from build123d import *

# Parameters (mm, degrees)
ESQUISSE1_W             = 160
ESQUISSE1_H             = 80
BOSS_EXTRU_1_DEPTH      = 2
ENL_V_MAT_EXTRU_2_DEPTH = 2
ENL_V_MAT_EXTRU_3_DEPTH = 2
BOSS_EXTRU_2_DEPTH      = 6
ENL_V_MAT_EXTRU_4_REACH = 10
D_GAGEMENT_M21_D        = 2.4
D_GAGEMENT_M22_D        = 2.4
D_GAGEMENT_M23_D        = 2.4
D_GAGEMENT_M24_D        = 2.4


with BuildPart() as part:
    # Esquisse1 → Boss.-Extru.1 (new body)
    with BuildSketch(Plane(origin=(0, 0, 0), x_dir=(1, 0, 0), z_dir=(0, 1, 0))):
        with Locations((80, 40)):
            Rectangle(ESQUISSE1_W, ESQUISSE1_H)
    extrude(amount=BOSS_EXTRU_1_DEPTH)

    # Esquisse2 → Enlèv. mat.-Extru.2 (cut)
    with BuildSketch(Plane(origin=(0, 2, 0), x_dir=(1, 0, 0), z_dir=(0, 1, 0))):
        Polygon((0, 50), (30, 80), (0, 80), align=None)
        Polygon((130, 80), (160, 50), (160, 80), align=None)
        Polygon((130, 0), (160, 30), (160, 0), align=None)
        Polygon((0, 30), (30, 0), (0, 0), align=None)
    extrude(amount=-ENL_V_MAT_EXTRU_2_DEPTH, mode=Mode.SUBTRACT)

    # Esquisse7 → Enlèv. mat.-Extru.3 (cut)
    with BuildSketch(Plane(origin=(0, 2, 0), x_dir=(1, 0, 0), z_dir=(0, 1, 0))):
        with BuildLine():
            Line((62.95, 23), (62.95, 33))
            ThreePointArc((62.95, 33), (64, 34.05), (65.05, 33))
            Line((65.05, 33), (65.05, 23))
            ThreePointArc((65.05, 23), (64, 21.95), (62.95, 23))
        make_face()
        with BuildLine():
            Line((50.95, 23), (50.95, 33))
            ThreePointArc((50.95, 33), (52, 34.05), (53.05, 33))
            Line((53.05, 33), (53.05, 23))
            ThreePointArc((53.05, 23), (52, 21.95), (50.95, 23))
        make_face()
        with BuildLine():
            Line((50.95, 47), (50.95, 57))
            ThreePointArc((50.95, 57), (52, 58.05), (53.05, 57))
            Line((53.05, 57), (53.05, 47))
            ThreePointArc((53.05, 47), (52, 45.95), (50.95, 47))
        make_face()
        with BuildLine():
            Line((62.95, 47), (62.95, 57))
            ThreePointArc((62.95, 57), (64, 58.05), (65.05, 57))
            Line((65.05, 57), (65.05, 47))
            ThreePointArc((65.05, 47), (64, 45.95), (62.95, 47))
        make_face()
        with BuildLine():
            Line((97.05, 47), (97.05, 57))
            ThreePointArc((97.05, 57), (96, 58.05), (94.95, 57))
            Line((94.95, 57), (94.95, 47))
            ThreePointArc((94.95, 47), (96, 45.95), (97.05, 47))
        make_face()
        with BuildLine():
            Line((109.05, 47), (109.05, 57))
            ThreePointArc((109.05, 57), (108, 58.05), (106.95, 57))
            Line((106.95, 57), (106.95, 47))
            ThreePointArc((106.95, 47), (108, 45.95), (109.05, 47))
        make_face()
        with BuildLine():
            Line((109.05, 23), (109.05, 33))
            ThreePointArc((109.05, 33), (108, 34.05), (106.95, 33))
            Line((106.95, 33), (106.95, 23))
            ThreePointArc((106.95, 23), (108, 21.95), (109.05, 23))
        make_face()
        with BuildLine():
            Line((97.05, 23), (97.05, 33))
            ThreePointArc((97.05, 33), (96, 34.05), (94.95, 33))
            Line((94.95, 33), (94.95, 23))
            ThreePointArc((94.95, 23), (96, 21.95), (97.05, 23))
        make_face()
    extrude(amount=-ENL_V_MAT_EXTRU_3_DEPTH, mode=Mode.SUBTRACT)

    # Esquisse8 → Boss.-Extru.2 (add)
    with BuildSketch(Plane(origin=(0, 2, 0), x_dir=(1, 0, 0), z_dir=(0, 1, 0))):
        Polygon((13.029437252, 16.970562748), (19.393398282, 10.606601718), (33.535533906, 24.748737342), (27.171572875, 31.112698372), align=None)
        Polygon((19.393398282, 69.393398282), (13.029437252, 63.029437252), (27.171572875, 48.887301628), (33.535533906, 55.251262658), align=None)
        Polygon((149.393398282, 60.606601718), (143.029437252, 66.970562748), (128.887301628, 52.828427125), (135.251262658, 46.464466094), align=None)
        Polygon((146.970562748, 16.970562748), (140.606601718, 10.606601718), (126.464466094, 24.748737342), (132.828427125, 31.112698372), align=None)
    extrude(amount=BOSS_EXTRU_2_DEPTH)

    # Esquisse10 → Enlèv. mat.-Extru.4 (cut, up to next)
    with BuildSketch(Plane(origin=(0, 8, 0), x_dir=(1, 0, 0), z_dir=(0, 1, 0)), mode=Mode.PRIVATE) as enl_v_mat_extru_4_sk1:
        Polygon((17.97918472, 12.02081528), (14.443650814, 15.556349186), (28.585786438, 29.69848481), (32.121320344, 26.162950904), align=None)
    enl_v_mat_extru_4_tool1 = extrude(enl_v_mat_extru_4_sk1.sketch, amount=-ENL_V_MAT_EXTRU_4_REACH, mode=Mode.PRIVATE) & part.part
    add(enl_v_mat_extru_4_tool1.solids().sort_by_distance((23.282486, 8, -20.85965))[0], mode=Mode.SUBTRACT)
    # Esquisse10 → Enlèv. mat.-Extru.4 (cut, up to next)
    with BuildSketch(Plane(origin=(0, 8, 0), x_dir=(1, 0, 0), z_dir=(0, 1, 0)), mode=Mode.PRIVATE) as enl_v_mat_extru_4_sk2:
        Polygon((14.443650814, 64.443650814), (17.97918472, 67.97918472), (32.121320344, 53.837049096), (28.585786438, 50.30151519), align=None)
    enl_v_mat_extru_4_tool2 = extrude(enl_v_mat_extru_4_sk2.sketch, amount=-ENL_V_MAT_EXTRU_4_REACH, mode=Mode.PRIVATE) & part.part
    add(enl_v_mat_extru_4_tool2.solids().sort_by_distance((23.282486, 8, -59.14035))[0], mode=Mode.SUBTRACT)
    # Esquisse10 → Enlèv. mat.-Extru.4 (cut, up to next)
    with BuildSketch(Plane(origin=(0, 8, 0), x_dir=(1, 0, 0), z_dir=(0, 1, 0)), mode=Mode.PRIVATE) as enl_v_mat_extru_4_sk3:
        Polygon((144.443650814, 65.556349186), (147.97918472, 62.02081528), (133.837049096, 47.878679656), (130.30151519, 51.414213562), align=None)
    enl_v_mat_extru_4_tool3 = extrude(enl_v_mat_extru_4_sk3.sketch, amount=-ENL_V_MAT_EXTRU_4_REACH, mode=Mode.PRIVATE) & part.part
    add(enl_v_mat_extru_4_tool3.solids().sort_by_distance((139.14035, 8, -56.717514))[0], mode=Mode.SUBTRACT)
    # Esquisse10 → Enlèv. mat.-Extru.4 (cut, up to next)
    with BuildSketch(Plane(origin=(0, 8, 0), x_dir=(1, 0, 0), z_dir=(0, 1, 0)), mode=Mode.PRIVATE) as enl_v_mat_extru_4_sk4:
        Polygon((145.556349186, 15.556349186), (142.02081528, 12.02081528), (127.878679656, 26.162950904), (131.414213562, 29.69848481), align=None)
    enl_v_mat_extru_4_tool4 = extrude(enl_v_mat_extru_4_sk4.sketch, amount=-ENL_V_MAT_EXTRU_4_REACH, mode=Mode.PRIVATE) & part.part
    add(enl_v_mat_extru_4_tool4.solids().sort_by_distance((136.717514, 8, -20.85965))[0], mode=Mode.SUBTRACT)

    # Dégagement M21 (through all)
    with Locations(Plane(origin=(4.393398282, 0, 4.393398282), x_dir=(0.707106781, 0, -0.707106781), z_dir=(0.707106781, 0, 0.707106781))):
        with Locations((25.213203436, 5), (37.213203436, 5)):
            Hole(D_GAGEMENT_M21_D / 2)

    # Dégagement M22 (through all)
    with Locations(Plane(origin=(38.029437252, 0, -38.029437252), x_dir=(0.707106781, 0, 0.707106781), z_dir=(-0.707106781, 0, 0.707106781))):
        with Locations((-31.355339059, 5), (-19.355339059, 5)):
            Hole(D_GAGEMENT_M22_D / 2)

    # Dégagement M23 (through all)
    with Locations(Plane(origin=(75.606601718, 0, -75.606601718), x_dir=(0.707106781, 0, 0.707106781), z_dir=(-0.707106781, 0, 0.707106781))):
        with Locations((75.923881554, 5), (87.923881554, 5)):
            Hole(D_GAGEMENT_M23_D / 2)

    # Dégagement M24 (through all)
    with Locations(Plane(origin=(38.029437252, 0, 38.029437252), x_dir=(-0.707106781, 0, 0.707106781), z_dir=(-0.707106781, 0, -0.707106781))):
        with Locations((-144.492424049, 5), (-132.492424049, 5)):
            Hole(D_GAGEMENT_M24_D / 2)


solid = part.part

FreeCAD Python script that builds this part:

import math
import FreeCAD as App
import Part
import Sketcher
Q = App.Units.Quantity


def add_polygon(sketch, points):
    """Adds a closed chain of lines whose ends are joined by coincident constraints."""
    first, n = sketch.GeometryCount, len(points)
    for a, b in zip(points, points[1:] + points[:1]):
        sketch.addGeometry(Part.LineSegment(App.Vector(*a, 0), App.Vector(*b, 0)), False)
    for i in range(n):
        sketch.addConstraint(Sketcher.Constraint("Coincident", first + i, 2, first + (i + 1) % n, 1))

doc = App.newDocument("Part")
body = doc.addObject("PartDesign::Body", "Body")

# Sketch on XZ plane
sketch1 = doc.addObject("Sketcher::SketchObject", "Sketch")
body.addObject(sketch1)
sketch1.AttachmentSupport = (doc.XZ_Plane, [""])
sketch1.MapMode = "FlatFace"
add_polygon(sketch1, [(0, -80), (0, 0), (160, 0), (160, -80)])  # lines 0-3
sketch1.addConstraint(Sketcher.Constraint("Vertical", 0))
sketch1.addConstraint(Sketcher.Constraint("Horizontal", 1))
sketch1.addConstraint(Sketcher.Constraint("Vertical", 2))
sketch1.addConstraint(Sketcher.Constraint("Horizontal", 3))
sketch1.addConstraint(Sketcher.Constraint("Coincident", 0, 2, -1, 1))
sketch1.addConstraint(Sketcher.Constraint("DistanceX", 1, 1, 1, 2, 160.0))
sketch1.addConstraint(Sketcher.Constraint("DistanceY", 0, 1, 0, 2, 80.0))
pad1 = doc.addObject("PartDesign::Pad", "Pad")
body.addObject(pad1)
pad1.Profile = sketch1
pad1.Length = 2
pad1.Reversed = True

# Sketch on XZ plane
sketch2 = doc.addObject("Sketcher::SketchObject", "Sketch001")
body.addObject(sketch2)
sketch2.AttachmentSupport = (doc.XZ_Plane, [""])
sketch2.MapMode = "FlatFace"
sketch2.AttachmentOffset = App.Placement(App.Vector(0, 0, -2), App.Rotation())
add_polygon(sketch2, [(0, -50), (30, -80), (0, -80)])  # lines 0-2
add_polygon(sketch2, [(130, -80), (160, -50), (160, -80)])  # lines 3-5
add_polygon(sketch2, [(160, -30), (130, 0), (160, 0)])  # lines 6-8
add_polygon(sketch2, [(30, 0), (0, -30), (0, 0)])  # lines 9-11
sketch2.addConstraint(Sketcher.Constraint("Horizontal", 1))
sketch2.addConstraint(Sketcher.Constraint("Vertical", 2))
sketch2.addConstraint(Sketcher.Constraint("Vertical", 4))
sketch2.addConstraint(Sketcher.Constraint("Horizontal", 5))
sketch2.addConstraint(Sketcher.Constraint("Horizontal", 7))
sketch2.addConstraint(Sketcher.Constraint("Vertical", 8))
sketch2.addConstraint(Sketcher.Constraint("Vertical", 10))
sketch2.addConstraint(Sketcher.Constraint("Horizontal", 11))
sketch2.addConstraint(Sketcher.Constraint("Coincident", 10, 2, -1, 1))
sketch2.addConstraint(Sketcher.Constraint("PointOnObject", 1, 2, -2))
sketch2.addConstraint(Sketcher.Constraint("PointOnObject", 6, 2, -1))
sketch2.addConstraint(Sketcher.Constraint("Perpendicular", 0, 3))
sketch2.addConstraint(Sketcher.Constraint("Perpendicular", 3, 6))
sketch2.addConstraint(Sketcher.Constraint("Perpendicular", 6, 9))
sketch2.addConstraint(Sketcher.Constraint("Horizontal", 2, 2, 3, 2))
sketch2.addConstraint(Sketcher.Constraint("Horizontal", 1, 2, 4, 2))
sketch2.addConstraint(Sketcher.Constraint("Horizontal", 8, 2, 9, 2))
sketch2.addConstraint(Sketcher.Constraint("Vertical", 5, 2, 6, 2))
sketch2.addConstraint(Sketcher.Constraint("Vertical", 4, 2, 7, 2))
sketch2.addConstraint(Sketcher.Constraint("Vertical", 0, 2, 11, 2))
sketch2.addConstraint(Sketcher.Constraint("DistanceX", 1, 2, 1, 1, 30.0))
sketch2.addConstraint(Sketcher.Constraint("DistanceY", 0, 2, -1, 1, 80.0))
sketch2.addConstraint(Sketcher.Constraint("DistanceX", -1, 1, 3, 2, 160.0))
pocket1 = doc.addObject("PartDesign::Pocket", "Pocket")
body.addObject(pocket1)
pocket1.Profile = sketch2
pocket1.Length = 2
pocket1.Reversed = True

# Sketch on XZ plane
sketch3 = doc.addObject("Sketcher::SketchObject", "Sketch002")
body.addObject(sketch3)
sketch3.AttachmentSupport = (doc.XZ_Plane, [""])
sketch3.MapMode = "FlatFace"
sketch3.AttachmentOffset = App.Placement(App.Vector(0, 0, -2), App.Rotation())
sketch3.addGeometry(Part.LineSegment(App.Vector(62.95, -33, 0), App.Vector(62.95, -23, 0)), False)
sketch3.addGeometry(Part.ArcOfCircle(Part.Circle(App.Vector(64, -23, 0), App.Vector(0, 0, 1), 1.05), math.radians(0), math.radians(180)), False)
sketch3.addGeometry(Part.LineSegment(App.Vector(65.05, -23, 0), App.Vector(65.05, -33, 0)), False)
sketch3.addGeometry(Part.ArcOfCircle(Part.Circle(App.Vector(64, -33, 0), App.Vector(0, 0, 1), 1.05), math.radians(180), math.radians(360)), False)
sketch3.addGeometry(Part.LineSegment(App.Vector(50.95, -33, 0), App.Vector(50.95, -23, 0)), False)
sketch3.addGeometry(Part.ArcOfCircle(Part.Circle(App.Vector(52, -23, 0), App.Vector(0, 0, 1), 1.05), math.radians(0), math.radians(180)), False)
sketch3.addGeometry(Part.LineSegment(App.Vector(53.05, -23, 0), App.Vector(53.05, -33, 0)), False)
sketch3.addGeometry(Part.ArcOfCircle(Part.Circle(App.Vector(52, -33, 0), App.Vector(0, 0, 1), 1.05), math.radians(180), math.radians(360)), False)
sketch3.addGeometry(Part.LineSegment(App.Vector(50.95, -57, 0), App.Vector(50.95, -47, 0)), False)
sketch3.addGeometry(Part.ArcOfCircle(Part.Circle(App.Vector(52, -47, 0), App.Vector(0, 0, 1), 1.05), math.radians(0), math.radians(180)), False)
sketch3.addGeometry(Part.LineSegment(App.Vector(53.05, -47, 0), App.Vector(53.05, -57, 0)), False)
sketch3.addGeometry(Part.ArcOfCircle(Part.Circle(App.Vector(52, -57, 0), App.Vector(0, 0, 1), 1.05), math.radians(180), math.radians(360)), False)
sketch3.addGeometry(Part.LineSegment(App.Vector(62.95, -57, 0), App.Vector(62.95, -47, 0)), False)
sketch3.addGeometry(Part.ArcOfCircle(Part.Circle(App.Vector(64, -47, 0), App.Vector(0, 0, 1), 1.05), math.radians(0), math.radians(180)), False)
sketch3.addGeometry(Part.LineSegment(App.Vector(65.05, -47, 0), App.Vector(65.05, -57, 0)), False)
sketch3.addGeometry(Part.ArcOfCircle(Part.Circle(App.Vector(64, -57, 0), App.Vector(0, 0, 1), 1.05), math.radians(180), math.radians(360)), False)
sketch3.addGeometry(Part.LineSegment(App.Vector(97.05, -47, 0), App.Vector(97.05, -57, 0)), False)
sketch3.addGeometry(Part.ArcOfCircle(Part.Circle(App.Vector(96, -57, 0), App.Vector(0, 0, 1), 1.05), math.radians(180), math.radians(360)), False)
sketch3.addGeometry(Part.LineSegment(App.Vector(94.95, -57, 0), App.Vector(94.95, -47, 0)), False)
sketch3.addGeometry(Part.ArcOfCircle(Part.Circle(App.Vector(96, -47, 0), App.Vector(0, 0, 1), 1.05), math.radians(0), math.radians(180)), False)
sketch3.addGeometry(Part.LineSegment(App.Vector(109.05, -47, 0), App.Vector(109.05, -57, 0)), False)
sketch3.addGeometry(Part.ArcOfCircle(Part.Circle(App.Vector(108, -57, 0), App.Vector(0, 0, 1), 1.05), math.radians(180), math.radians(360)), False)
sketch3.addGeometry(Part.LineSegment(App.Vector(106.95, -57, 0), App.Vector(106.95, -47, 0)), False)
sketch3.addGeometry(Part.ArcOfCircle(Part.Circle(App.Vector(108, -47, 0), App.Vector(0, 0, 1), 1.05), math.radians(0), math.radians(180)), False)
sketch3.addGeometry(Part.LineSegment(App.Vector(109.05, -23, 0), App.Vector(109.05, -33, 0)), False)
sketch3.addGeometry(Part.ArcOfCircle(Part.Circle(App.Vector(108, -33, 0), App.Vector(0, 0, 1), 1.05), math.radians(180), math.radians(360)), False)
sketch3.addGeometry(Part.LineSegment(App.Vector(106.95, -33, 0), App.Vector(106.95, -23, 0)), False)
sketch3.addGeometry(Part.ArcOfCircle(Part.Circle(App.Vector(108, -23, 0), App.Vector(0, 0, 1), 1.05), math.radians(0), math.radians(180)), False)
sketch3.addGeometry(Part.LineSegment(App.Vector(97.05, -23, 0), App.Vector(97.05, -33, 0)), False)
sketch3.addGeometry(Part.ArcOfCircle(Part.Circle(App.Vector(96, -33, 0), App.Vector(0, 0, 1), 1.05), math.radians(180), math.radians(360)), False)
sketch3.addGeometry(Part.LineSegment(App.Vector(94.95, -33, 0), App.Vector(94.95, -23, 0)), False)
sketch3.addGeometry(Part.ArcOfCircle(Part.Circle(App.Vector(96, -23, 0), App.Vector(0, 0, 1), 1.05), math.radians(0), math.radians(180)), False)
sketch3.addConstraint(Sketcher.Constraint("Tangent", 0, 2, 1, 2))
sketch3.addConstraint(Sketcher.Constraint("Tangent", 1, 1, 2, 1))
sketch3.addConstraint(Sketcher.Constraint("Tangent", 2, 2, 3, 2))
sketch3.addConstraint(Sketcher.Constraint("Tangent", 3, 1, 0, 1))
sketch3.addConstraint(Sketcher.Constraint("Tangent", 4, 2, 5, 2))
sketch3.addConstraint(Sketcher.Constraint("Tangent", 5, 1, 6, 1))
sketch3.addConstraint(Sketcher.Constraint("Tangent", 6, 2, 7, 2))
sketch3.addConstraint(Sketcher.Constraint("Tangent", 7, 1, 4, 1))
sketch3.addConstraint(Sketcher.Constraint("Tangent", 8, 2, 9, 2))
sketch3.addConstraint(Sketcher.Constraint("Tangent", 9, 1, 10, 1))
sketch3.addConstraint(Sketcher.Constraint("Tangent", 10, 2, 11, 2))
sketch3.addConstraint(Sketcher.Constraint("Tangent", 11, 1, 8, 1))
sketch3.addConstraint(Sketcher.Constraint("Tangent", 12, 2, 13, 2))
sketch3.addConstraint(Sketcher.Constraint("Tangent", 13, 1, 14, 1))
sketch3.addConstraint(Sketcher.Constraint("Tangent", 14, 2, 15, 2))
sketch3.addConstraint(Sketcher.Constraint("Tangent", 15, 1, 12, 1))
sketch3.addConstraint(Sketcher.Constraint("Tangent", 16, 2, 17, 2))
sketch3.addConstraint(Sketcher.Constraint("Tangent", 17, 1, 18, 1))
sketch3.addConstraint(Sketcher.Constraint("Tangent", 18, 2, 19, 2))
sketch3.addConstraint(Sketcher.Constraint("Tangent", 19, 1, 16, 1))
sketch3.addConstraint(Sketcher.Constraint("Tangent", 20, 2, 21, 2))
sketch3.addConstraint(Sketcher.Constraint("Tangent", 21, 1, 22, 1))
sketch3.addConstraint(Sketcher.Constraint("Tangent", 22, 2, 23, 2))
sketch3.addConstraint(Sketcher.Constraint("Tangent", 23, 1, 20, 1))
sketch3.addConstraint(Sketcher.Constraint("Tangent", 24, 2, 25, 2))
sketch3.addConstraint(Sketcher.Constraint("Tangent", 25, 1, 26, 1))
sketch3.addConstraint(Sketcher.Constraint("Tangent", 26, 2, 27, 2))
sketch3.addConstraint(Sketcher.Constraint("Tangent", 27, 1, 24, 1))
sketch3.addConstraint(Sketcher.Constraint("Tangent", 28, 2, 29, 2))
sketch3.addConstraint(Sketcher.Constraint("Tangent", 29, 1, 30, 1))
sketch3.addConstraint(Sketcher.Constraint("Tangent", 30, 2, 31, 2))
sketch3.addConstraint(Sketcher.Constraint("Tangent", 31, 1, 28, 1))
sketch3.addConstraint(Sketcher.Constraint("Vertical", 0))
sketch3.addConstraint(Sketcher.Constraint("Vertical", 2))
sketch3.addConstraint(Sketcher.Constraint("Vertical", 4))
sketch3.addConstraint(Sketcher.Constraint("Vertical", 6))
sketch3.addConstraint(Sketcher.Constraint("Vertical", 8))
sketch3.addConstraint(Sketcher.Constraint("Vertical", 10))
sketch3.addConstraint(Sketcher.Constraint("Vertical", 12))
sketch3.addConstraint(Sketcher.Constraint("Vertical", 14))
sketch3.addConstraint(Sketcher.Constraint("Vertical", 16))
sketch3.addConstraint(Sketcher.Constraint("Vertical", 18))
sketch3.addConstraint(Sketcher.Constraint("Vertical", 20))
sketch3.addConstraint(Sketcher.Constraint("Vertical", 22))
sketch3.addConstraint(Sketcher.Constraint("Vertical", 24))
sketch3.addConstraint(Sketcher.Constraint("Vertical", 26))
sketch3.addConstraint(Sketcher.Constraint("Vertical", 28))
sketch3.addConstraint(Sketcher.Constraint("Vertical", 30))
sketch3.addConstraint(Sketcher.Constraint("Equal", 3, 5))
sketch3.addConstraint(Sketcher.Constraint("Equal", 7, 9))
sketch3.addConstraint(Sketcher.Constraint("Equal", 11, 13))
sketch3.addConstraint(Sketcher.Constraint("Equal", 15, 17))
sketch3.addConstraint(Sketcher.Constraint("Equal", 19, 21))
sketch3.addConstraint(Sketcher.Constraint("Equal", 23, 25))
sketch3.addConstraint(Sketcher.Constraint("Equal", 27, 29))
sketch3.addConstraint(Sketcher.Constraint("Horizontal", 1, 3, 5, 3))
sketch3.addConstraint(Sketcher.Constraint("Horizontal", 3, 3, 7, 3))
sketch3.addConstraint(Sketcher.Constraint("Horizontal", 9, 3, 13, 3))
sketch3.addConstraint(Sketcher.Constraint("Horizontal", 11, 3, 15, 3))
sketch3.addConstraint(Sketcher.Constraint("Horizontal", 15, 3, 17, 3))
sketch3.addConstraint(Sketcher.Constraint("Horizontal", 13, 3, 19, 3))
sketch3.addConstraint(Sketcher.Constraint("Horizontal", 17, 3, 21, 3))
sketch3.addConstraint(Sketcher.Constraint("Horizontal", 19, 3, 23, 3))
sketch3.addConstraint(Sketcher.Constraint("Horizontal", 7, 3, 25, 3))
sketch3.addConstraint(Sketcher.Constraint("Horizontal", 5, 3, 27, 3))
sketch3.addConstraint(Sketcher.Constraint("Horizontal", 25, 3, 29, 3))
sketch3.addConstraint(Sketcher.Constraint("Horizontal", 27, 3, 31, 3))
sketch3.addConstraint(Sketcher.Constraint("Vertical", 7, 3, 9, 3))
sketch3.addConstraint(Sketcher.Constraint("Vertical", 3, 3, 13, 3))
sketch3.addConstraint(Sketcher.Constraint("Vertical", 23, 3, 25, 3))
sketch3.addConstraint(Sketcher.Constraint("Vertical", 19, 3, 29, 3))
sketch3.addConstraint(Sketcher.Constraint("Equal", 6, 8))
sketch3.addConstraint(Sketcher.Constraint("DistanceY", 0, 1, 0, 2, 10.0))
sketch3.addConstraint(Sketcher.Constraint("Radius", 1, 1.05))
sketch3.addConstraint(Sketcher.Constraint("DistanceX", -1, 1, 1, 3, 64.0))
sketch3.addConstraint(Sketcher.Constraint("DistanceY", 1, 3, -1, 1, 23.0))
sketch3.addConstraint(Sketcher.Constraint("DistanceX", -1, 1, 5, 3, 52.0))
sketch3.addConstraint(Sketcher.Constraint("DistanceY", 9, 3, -1, 1, 47.0))
sketch3.addConstraint(Sketcher.Constraint("DistanceX", -1, 1, 17, 3, 96.0))
sketch3.addConstraint(Sketcher.Constraint("DistanceX", -1, 1, 21, 3, 108.0))
pocket2 = doc.addObject("PartDesign::Pocket", "Pocket001")
body.addObject(pocket2)
pocket2.Profile = sketch3
pocket2.Length = 2
pocket2.Reversed = True

# Sketch on XZ plane
sketch4 = doc.addObject("Sketcher::SketchObject", "Sketch003")
body.addObject(sketch4)
sketch4.AttachmentSupport = (doc.XZ_Plane, [""])
sketch4.MapMode = "FlatFace"
sketch4.AttachmentOffset = App.Placement(App.Vector(0, 0, -2), App.Rotation())
add_polygon(sketch4, [(13.029437, -16.970563), (19.393398, -10.606602), (33.535534, -24.748737), (27.171573, -31.112698)])  # lines 0-3
add_polygon(sketch4, [(19.393398, -69.393398), (13.029437, -63.029437), (27.171573, -48.887302), (33.535534, -55.251263)])  # lines 4-7
add_polygon(sketch4, [(149.393398, -60.606602), (143.029437, -66.970563), (128.887302, -52.828427), (135.251263, -46.464466)])  # lines 8-11
add_polygon(sketch4, [(140.606602, -10.606602), (146.970563, -16.970563), (132.828427, -31.112698), (126.464466, -24.748737)])  # lines 12-15
sketch4.addConstraint(Sketcher.Constraint("Perpendicular", 0, 1))
sketch4.addConstraint(Sketcher.Constraint("Perpendicular", 1, 2))
sketch4.addConstraint(Sketcher.Constraint("Perpendicular", 2, 3))
sketch4.addConstraint(Sketcher.Constraint("Parallel", 3, 4))
sketch4.addConstraint(Sketcher.Constraint("Perpendicular", 4, 5))
sketch4.addConstraint(Sketcher.Constraint("Perpendicular", 5, 6))
sketch4.addConstraint(Sketcher.Constraint("Perpendicular", 6, 7))
sketch4.addConstraint(Sketcher.Constraint("Parallel", 7, 8))
sketch4.addConstraint(Sketcher.Constraint("Perpendicular", 8, 9))
sketch4.addConstraint(Sketcher.Constraint("Perpendicular", 9, 10))
sketch4.addConstraint(Sketcher.Constraint("Perpendicular", 10, 11))
sketch4.addConstraint(Sketcher.Constraint("Parallel", 11, 12))
sketch4.addConstraint(Sketcher.Constraint("Perpendicular", 12, 13))
sketch4.addConstraint(Sketcher.Constraint("Perpendicular", 13, 14))
sketch4.addConstraint(Sketcher.Constraint("Perpendicular", 14, 15))
sketch4.addConstraint(Sketcher.Constraint("Horizontal", 3, 2, 12, 2))
sketch4.addConstraint(Sketcher.Constraint("Horizontal", 2, 2, 13, 2))
sketch4.addConstraint(Sketcher.Constraint("Horizontal", 1, 2, 14, 2))
sketch4.addConstraint(Sketcher.Constraint("Vertical", 3, 2, 4, 2))
sketch4.addConstraint(Sketcher.Constraint("Vertical", 2, 2, 5, 2))
sketch4.addConstraint(Sketcher.Constraint("Vertical", 1, 2, 6, 2))
sketch4.addConstraint(Sketcher.Constraint("Equal", 2, 4))
sketch4.addConstraint(Sketcher.Constraint("Equal", 6, 8))
sketch4.addConstraint(Sketcher.Constraint("Equal", 7, 9))
sketch4.addConstraint(Sketcher.Constraint("Distance", 0, 9.0))
sketch4.addConstraint(Sketcher.Constraint("Distance", 1, 20.0))
sketch4.addConstraint(Sketcher.Constraint("DistanceY", 8, 2, 12, 2, 50.0))
sketch4.addConstraint(Sketcher.Constraint("DistanceX", -1, 1, 0, 2, 19.393398))
sketch4.addConstraint(Sketcher.Constraint("DistanceY", 0, 2, -1, 1, 10.606602))
sketch4.addConstraint(Sketcher.Constraint("DistanceY", 5, 2, -1, 1, 48.887302))
sketch4.addConstraint(Sketcher.Constraint("DistanceX", -1, 1, 9, 2, 128.887302))
sketch4.addConstraint(Sketcher.Constraint("DistanceX", -1, 1, 15, 2, 140.606602))
pad2 = doc.addObject("PartDesign::Pad", "Pad001")
body.addObject(pad2)
pad2.Profile = sketch4
pad2.Length = 6
pad2.Reversed = True

# Sketch on XZ plane
sketch5 = doc.addObject("Sketcher::SketchObject", "Sketch004")
body.addObject(sketch5)
sketch5.AttachmentSupport = (doc.XZ_Plane, [""])
sketch5.MapMode = "FlatFace"
sketch5.AttachmentOffset = App.Placement(App.Vector(0, 0, -8), App.Rotation())
add_polygon(sketch5, [(14.443651, -15.556349), (17.979185, -12.020815), (32.12132, -26.162951), (28.585786, -29.698485)])  # lines 0-3
sketch5.addConstraint(Sketcher.Constraint("Perpendicular", 0, 1))
sketch5.addConstraint(Sketcher.Constraint("Perpendicular", 1, 2))
sketch5.addConstraint(Sketcher.Constraint("Perpendicular", 2, 3))
sketch5.addConstraint(Sketcher.Constraint("Angle", 0, Q("45 deg")))
sketch5.addConstraint(Sketcher.Constraint("Distance", 0, 5.0))
sketch5.addConstraint(Sketcher.Constraint("Distance", 1, 20.0))
sketch5.addConstraint(Sketcher.Constraint("DistanceX", -1, 1, 1, 2, 32.12132))
sketch5.addConstraint(Sketcher.Constraint("DistanceY", 1, 2, -1, 1, 26.162951))
pocket3 = doc.addObject("PartDesign::Pocket", "Pocket002")
body.addObject(pocket3)
pocket3.Profile = sketch5
pocket3.Type = "UpToFirst"
pocket3.Reversed = True

# Sketch on XZ plane
sketch6 = doc.addObject("Sketcher::SketchObject", "Sketch005")
body.addObject(sketch6)
sketch6.AttachmentSupport = (doc.XZ_Plane, [""])
sketch6.MapMode = "FlatFace"
sketch6.AttachmentOffset = App.Placement(App.Vector(0, 0, -8), App.Rotation())
add_polygon(sketch6, [(17.979185, -67.979185), (14.443651, -64.443651), (28.585786, -50.301515), (32.12132, -53.837049)])  # lines 0-3
sketch6.addConstraint(Sketcher.Constraint("Perpendicular", 0, 1))
sketch6.addConstraint(Sketcher.Constraint("Perpendicular", 1, 2))
sketch6.addConstraint(Sketcher.Constraint("Perpendicular", 2, 3))
sketch6.addConstraint(Sketcher.Constraint("Angle", 0, Q("135 deg")))
sketch6.addConstraint(Sketcher.Constraint("Distance", 0, 5.0))
sketch6.addConstraint(Sketcher.Constraint("Distance", 1, 20.0))
sketch6.addConstraint(Sketcher.Constraint("DistanceX", -1, 1, 0, 2, 14.443651))
sketch6.addConstraint(Sketcher.Constraint("DistanceY", 0, 2, -1, 1, 64.443651))
pocket4 = doc.addObject("PartDesign::Pocket", "Pocket003")
body.addObject(pocket4)
pocket4.Profile = sketch6
pocket4.Type = "UpToFirst"
pocket4.Reversed = True

# Sketch on XZ plane
sketch7 = doc.addObject("Sketcher::SketchObject", "Sketch006")
body.addObject(sketch7)
sketch7.AttachmentSupport = (doc.XZ_Plane, [""])
sketch7.MapMode = "FlatFace"
sketch7.AttachmentOffset = App.Placement(App.Vector(0, 0, -8), App.Rotation())
add_polygon(sketch7, [(147.979185, -62.020815), (144.443651, -65.556349), (130.301515, -51.414214), (133.837049, -47.87868)])  # lines 0-3
sketch7.addConstraint(Sketcher.Constraint("Perpendicular", 0, 1))
sketch7.addConstraint(Sketcher.Constraint("Perpendicular", 1, 2))
sketch7.addConstraint(Sketcher.Constraint("Perpendicular", 2, 3))
sketch7.addConstraint(Sketcher.Constraint("Angle", 0, Q("-135 deg")))
sketch7.addConstraint(Sketcher.Constraint("Distance", 0, 5.0))
sketch7.addConstraint(Sketcher.Constraint("Distance", 1, 20.0))
sketch7.addConstraint(Sketcher.Constraint("DistanceX", -1, 1, 0, 2, 144.443651))
sketch7.addConstraint(Sketcher.Constraint("DistanceY", 0, 2, -1, 1, 65.556349))
pocket5 = doc.addObject("PartDesign::Pocket", "Pocket004")
body.addObject(pocket5)
pocket5.Profile = sketch7
pocket5.Type = "UpToFirst"
pocket5.Reversed = True

# Sketch on XZ plane
sketch8 = doc.addObject("Sketcher::SketchObject", "Sketch007")
body.addObject(sketch8)
sketch8.AttachmentSupport = (doc.XZ_Plane, [""])
sketch8.MapMode = "FlatFace"
sketch8.AttachmentOffset = App.Placement(App.Vector(0, 0, -8), App.Rotation())
add_polygon(sketch8, [(142.020815, -12.020815), (145.556349, -15.556349), (131.414214, -29.698485), (127.87868, -26.162951)])  # lines 0-3
sketch8.addConstraint(Sketcher.Constraint("Perpendicular", 0, 1))
sketch8.addConstraint(Sketcher.Constraint("Perpendicular", 1, 2))
sketch8.addConstraint(Sketcher.Constraint("Perpendicular", 2, 3))
sketch8.addConstraint(Sketcher.Constraint("Angle", 0, Q("-45 deg")))
sketch8.addConstraint(Sketcher.Constraint("Distance", 0, 5.0))
sketch8.addConstraint(Sketcher.Constraint("Distance", 1, 20.0))
sketch8.addConstraint(Sketcher.Constraint("DistanceX", -1, 1, 0, 2, 145.556349))
sketch8.addConstraint(Sketcher.Constraint("DistanceY", 0, 2, -1, 1, 15.556349))
pocket6 = doc.addObject("PartDesign::Pocket", "Pocket005")
body.addObject(pocket6)
pocket6.Profile = sketch8
pocket6.Type = "UpToFirst"
pocket6.Reversed = True

# Sketch on an angled plane
sketch9 = doc.addObject("Sketcher::SketchObject", "Sketch008")
body.addObject(sketch9)
sketch9.Placement = App.Placement(App.Vector(4.393398, 0, 4.393398), App.Rotation(App.Vector(0.707106781, 0, -0.707106781), App.Vector(0, 0.999999999, 0), App.Vector(0.707106781, 0, 0.707106781), "ZXY"))
sketch9.addGeometry(Part.Circle(App.Vector(25.213203, 5, 0), App.Vector(0, 0, 1), 1.2), False)
sketch9.addGeometry(Part.Circle(App.Vector(37.213203, 5, 0), App.Vector(0, 0, 1), 1.2), False)
sketch9.addConstraint(Sketcher.Constraint("Equal", 0, 1))
sketch9.addConstraint(Sketcher.Constraint("Horizontal", 0, 3, 1, 3))
sketch9.addConstraint(Sketcher.Constraint("Diameter", 0, 2.4))
sketch9.addConstraint(Sketcher.Constraint("DistanceY", -1, 1, 0, 3, 5.0))
sketch9.addConstraint(Sketcher.Constraint("DistanceX", 0, 3, 1, 3, 12.0))
sketch9.addConstraint(Sketcher.Constraint("DistanceX", -1, 1, 0, 3, 25.213203))
doc.recompute()
hole = doc.addObject("PartDesign::Hole", "Hole")
body.addObject(hole)
hole.Profile = sketch9
hole.ThreadType = "None"
hole.Diameter = 2.4
hole.DepthType = "ThroughAll"

# Sketch on an angled plane
sketch10 = doc.addObject("Sketcher::SketchObject", "Sketch009")
body.addObject(sketch10)
sketch10.Placement = App.Placement(App.Vector(38.029437, 0, -38.029437), App.Rotation(App.Vector(0.707106781, 0, 0.707106781), App.Vector(0, 0.999999999, 0), App.Vector(-0.707106781, 0, 0.707106781), "ZXY"))
sketch10.addGeometry(Part.Circle(App.Vector(-31.355339, 5, 0), App.Vector(0, 0, 1), 1.2), False)
sketch10.addGeometry(Part.Circle(App.Vector(-19.355339, 5, 0), App.Vector(0, 0, 1), 1.2), False)
sketch10.addConstraint(Sketcher.Constraint("Equal", 0, 1))
sketch10.addConstraint(Sketcher.Constraint("Horizontal", 0, 3, 1, 3))
sketch10.addConstraint(Sketcher.Constraint("Diameter", 0, 2.4))
sketch10.addConstraint(Sketcher.Constraint("DistanceY", -1, 1, 0, 3, 5.0))
sketch10.addConstraint(Sketcher.Constraint("DistanceX", 0, 3, 1, 3, 12.0))
sketch10.addConstraint(Sketcher.Constraint("DistanceX", 0, 3, -1, 1, 31.355339))
doc.recompute()
hole2 = doc.addObject("PartDesign::Hole", "Hole001")
body.addObject(hole2)
hole2.Profile = sketch10
hole2.ThreadType = "None"
hole2.Diameter = 2.4
hole2.DepthType = "ThroughAll"

# Sketch on an angled plane
sketch11 = doc.addObject("Sketcher::SketchObject", "Sketch010")
body.addObject(sketch11)
sketch11.Placement = App.Placement(App.Vector(75.606602, 0, -75.606602), App.Rotation(App.Vector(0.707106781, 0, 0.707106781), App.Vector(0, 0.999999999, 0), App.Vector(-0.707106781, 0, 0.707106781), "ZXY"))
sketch11.addGeometry(Part.Circle(App.Vector(75.923882, 5, 0), App.Vector(0, 0, 1), 1.2), False)
sketch11.addGeometry(Part.Circle(App.Vector(87.923882, 5, 0), App.Vector(0, 0, 1), 1.2), False)
sketch11.addConstraint(Sketcher.Constraint("Equal", 0, 1))
sketch11.addConstraint(Sketcher.Constraint("Horizontal", 0, 3, 1, 3))
sketch11.addConstraint(Sketcher.Constraint("Diameter", 0, 2.4))
sketch11.addConstraint(Sketcher.Constraint("DistanceY", -1, 1, 0, 3, 5.0))
sketch11.addConstraint(Sketcher.Constraint("DistanceX", 0, 3, 1, 3, 12.0))
sketch11.addConstraint(Sketcher.Constraint("DistanceX", -1, 1, 0, 3, 75.923882))
doc.recompute()
hole3 = doc.addObject("PartDesign::Hole", "Hole002")
body.addObject(hole3)
hole3.Profile = sketch11
hole3.ThreadType = "None"
hole3.Diameter = 2.4
hole3.DepthType = "ThroughAll"

# Sketch on an angled plane
sketch12 = doc.addObject("Sketcher::SketchObject", "Sketch011")
body.addObject(sketch12)
sketch12.Placement = App.Placement(App.Vector(38.029437, 0, 38.029437), App.Rotation(App.Vector(-0.707106781, 0, 0.707106781), App.Vector(0, 0.999999999, 0), App.Vector(-0.707106781, 0, -0.707106781), "ZXY"))
sketch12.addGeometry(Part.Circle(App.Vector(-144.492424, 5, 0), App.Vector(0, 0, 1), 1.2), False)
sketch12.addGeometry(Part.Circle(App.Vector(-132.492424, 5, 0), App.Vector(0, 0, 1), 1.2), False)
sketch12.addConstraint(Sketcher.Constraint("Equal", 0, 1))
sketch12.addConstraint(Sketcher.Constraint("Horizontal", 0, 3, 1, 3))
sketch12.addConstraint(Sketcher.Constraint("Diameter", 0, 2.4))
sketch12.addConstraint(Sketcher.Constraint("DistanceY", -1, 1, 0, 3, 5.0))
sketch12.addConstraint(Sketcher.Constraint("DistanceX", 0, 3, 1, 3, 12.0))
sketch12.addConstraint(Sketcher.Constraint("DistanceX", 0, 3, -1, 1, 144.492424))
doc.recompute()
hole4 = doc.addObject("PartDesign::Hole", "Hole003")
body.addObject(hole4)
hole4.Profile = sketch12
hole4.ThreadType = "None"
hole4.Diameter = 2.4
hole4.DepthType = "ThroughAll"

doc.recompute()
